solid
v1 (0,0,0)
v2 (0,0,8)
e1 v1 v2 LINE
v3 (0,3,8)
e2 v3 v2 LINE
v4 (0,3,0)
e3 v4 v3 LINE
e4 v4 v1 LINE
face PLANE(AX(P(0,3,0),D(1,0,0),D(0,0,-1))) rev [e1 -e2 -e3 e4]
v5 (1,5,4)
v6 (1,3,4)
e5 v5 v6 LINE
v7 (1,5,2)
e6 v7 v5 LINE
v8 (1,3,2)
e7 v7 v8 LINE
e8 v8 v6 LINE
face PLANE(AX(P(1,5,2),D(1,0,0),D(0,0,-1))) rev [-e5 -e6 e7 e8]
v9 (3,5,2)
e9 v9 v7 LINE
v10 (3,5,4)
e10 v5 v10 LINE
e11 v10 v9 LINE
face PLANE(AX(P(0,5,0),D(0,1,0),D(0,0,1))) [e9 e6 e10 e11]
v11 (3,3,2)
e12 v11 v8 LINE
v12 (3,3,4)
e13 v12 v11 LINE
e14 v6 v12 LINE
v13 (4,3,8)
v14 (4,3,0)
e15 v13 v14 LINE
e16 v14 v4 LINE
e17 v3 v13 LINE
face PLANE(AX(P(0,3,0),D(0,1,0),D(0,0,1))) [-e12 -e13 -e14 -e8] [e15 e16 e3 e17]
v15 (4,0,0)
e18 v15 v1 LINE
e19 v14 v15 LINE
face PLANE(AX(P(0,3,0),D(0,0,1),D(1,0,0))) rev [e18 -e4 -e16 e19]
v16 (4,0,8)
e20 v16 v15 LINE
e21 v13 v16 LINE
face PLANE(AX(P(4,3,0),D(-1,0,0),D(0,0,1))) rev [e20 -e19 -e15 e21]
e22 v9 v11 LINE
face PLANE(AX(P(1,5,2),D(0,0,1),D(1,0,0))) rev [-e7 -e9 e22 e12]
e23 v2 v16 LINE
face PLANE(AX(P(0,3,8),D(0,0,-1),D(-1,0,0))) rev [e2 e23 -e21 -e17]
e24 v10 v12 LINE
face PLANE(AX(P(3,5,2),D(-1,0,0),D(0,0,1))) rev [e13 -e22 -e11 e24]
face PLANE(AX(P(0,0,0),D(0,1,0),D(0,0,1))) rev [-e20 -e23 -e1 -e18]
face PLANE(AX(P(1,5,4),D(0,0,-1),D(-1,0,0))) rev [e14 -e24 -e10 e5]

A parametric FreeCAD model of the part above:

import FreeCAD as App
import Part
import Sketcher
Q = App.Units.Quantity


def add_polygon(sketch, points):
    """Adds a closed chain of lines whose ends are joined by coincident constraints."""
    first, n = sketch.GeometryCount, len(points)
    for a, b in zip(points, points[1:] + points[:1]):
        sketch.addGeometry(Part.LineSegment(App.Vector(*a, 0), App.Vector(*b, 0)), False)
    for i in range(n):
        sketch.addConstraint(Sketcher.Constraint("Coincident", first + i, 2, first + (i + 1) % n, 1))

doc = App.newDocument("Part")
params = doc.addObject("Spreadsheet::Sheet", "Params")
for row, (alias, value) in enumerate([
    ("sketch1_width", "4 mm"),
    ("sketch1_height", "8 mm"),
    ("pad1_length", "3 mm"),
    ("sketch2_width", "2 mm"),
    ("pad2_length", "2 mm"),
], start=1):
    params.set(f"A{row}", alias)
    params.set(f"B{row}", "=" + value)
    params.setAlias(f"B{row}", alias)

body = doc.addObject("PartDesign::Body", "Body")

sketch1 = body.newObject("Sketcher::SketchObject", "Sketch")
sketch1.AttachmentSupport = (doc.getObject("XZ_Plane"), [""])
sketch1.MapMode = "FlatFace"
add_polygon(sketch1, [(0, 0), (0, 8), (4, 8), (4, 0)])
sketch1.addConstraint([
    Sketcher.Constraint("Vertical", 0),
    Sketcher.Constraint("Horizontal", 1),
    Sketcher.Constraint("Vertical", 2),
    Sketcher.Constraint("Horizontal", 3),
    Sketcher.Constraint("Coincident", 3, 2, -1, 1),
    Sketcher.Constraint("DistanceX", 1, 1, 1, 2, Q("4 mm")),
    Sketcher.Constraint("DistanceY", 0, 1, 0, 2, Q("8 mm")),
])
sketch1.setExpression("Constraints[9]", "Params.sketch1_width")
sketch1.setExpression("Constraints[10]", "Params.sketch1_height")
pad1 = body.newObject("PartDesign::Pad", "Pad")
pad1.Profile = sketch1
pad1.setExpression("Length", "Params.pad1_length")
pad1.Reversed = True

sketch2 = body.newObject("Sketcher::SketchObject", "Sketch001")
sketch2.AttachmentSupport = (doc.getObject("XZ_Plane"), [""])
sketch2.MapMode = "FlatFace"
sketch2.AttachmentOffset = App.Placement(App.Vector(0, 0, -3), App.Rotation())
add_polygon(sketch2, [(1, 2), (1, 4), (3, 4), (3, 2)])
sketch2.addConstraint([
    Sketcher.Constraint("Vertical", 0),
    Sketcher.Constraint("Horizontal", 1),
    Sketcher.Constraint("Vertical", 2),
    Sketcher.Constraint("Horizontal", 3),
    Sketcher.Constraint("Equal", 3, 0),
    Sketcher.Constraint("DistanceX", 1, 1, 1, 2, Q("2 mm")),
    Sketcher.Constraint("DistanceX", -1, 1, 0, 2, Q("1 mm")),
    Sketcher.Constraint("DistanceY", -1, 1, 0, 2, Q("4 mm")),
])
sketch2.setExpression("Constraints[9]", "Params.sketch2_width")
pad2 = body.newObject("PartDesign::Pad", "Pad001")
pad2.Profile = sketch2
pad2.setExpression("Length", "Params.pad2_length")
pad2.Reversed = True

doc.recompute()
